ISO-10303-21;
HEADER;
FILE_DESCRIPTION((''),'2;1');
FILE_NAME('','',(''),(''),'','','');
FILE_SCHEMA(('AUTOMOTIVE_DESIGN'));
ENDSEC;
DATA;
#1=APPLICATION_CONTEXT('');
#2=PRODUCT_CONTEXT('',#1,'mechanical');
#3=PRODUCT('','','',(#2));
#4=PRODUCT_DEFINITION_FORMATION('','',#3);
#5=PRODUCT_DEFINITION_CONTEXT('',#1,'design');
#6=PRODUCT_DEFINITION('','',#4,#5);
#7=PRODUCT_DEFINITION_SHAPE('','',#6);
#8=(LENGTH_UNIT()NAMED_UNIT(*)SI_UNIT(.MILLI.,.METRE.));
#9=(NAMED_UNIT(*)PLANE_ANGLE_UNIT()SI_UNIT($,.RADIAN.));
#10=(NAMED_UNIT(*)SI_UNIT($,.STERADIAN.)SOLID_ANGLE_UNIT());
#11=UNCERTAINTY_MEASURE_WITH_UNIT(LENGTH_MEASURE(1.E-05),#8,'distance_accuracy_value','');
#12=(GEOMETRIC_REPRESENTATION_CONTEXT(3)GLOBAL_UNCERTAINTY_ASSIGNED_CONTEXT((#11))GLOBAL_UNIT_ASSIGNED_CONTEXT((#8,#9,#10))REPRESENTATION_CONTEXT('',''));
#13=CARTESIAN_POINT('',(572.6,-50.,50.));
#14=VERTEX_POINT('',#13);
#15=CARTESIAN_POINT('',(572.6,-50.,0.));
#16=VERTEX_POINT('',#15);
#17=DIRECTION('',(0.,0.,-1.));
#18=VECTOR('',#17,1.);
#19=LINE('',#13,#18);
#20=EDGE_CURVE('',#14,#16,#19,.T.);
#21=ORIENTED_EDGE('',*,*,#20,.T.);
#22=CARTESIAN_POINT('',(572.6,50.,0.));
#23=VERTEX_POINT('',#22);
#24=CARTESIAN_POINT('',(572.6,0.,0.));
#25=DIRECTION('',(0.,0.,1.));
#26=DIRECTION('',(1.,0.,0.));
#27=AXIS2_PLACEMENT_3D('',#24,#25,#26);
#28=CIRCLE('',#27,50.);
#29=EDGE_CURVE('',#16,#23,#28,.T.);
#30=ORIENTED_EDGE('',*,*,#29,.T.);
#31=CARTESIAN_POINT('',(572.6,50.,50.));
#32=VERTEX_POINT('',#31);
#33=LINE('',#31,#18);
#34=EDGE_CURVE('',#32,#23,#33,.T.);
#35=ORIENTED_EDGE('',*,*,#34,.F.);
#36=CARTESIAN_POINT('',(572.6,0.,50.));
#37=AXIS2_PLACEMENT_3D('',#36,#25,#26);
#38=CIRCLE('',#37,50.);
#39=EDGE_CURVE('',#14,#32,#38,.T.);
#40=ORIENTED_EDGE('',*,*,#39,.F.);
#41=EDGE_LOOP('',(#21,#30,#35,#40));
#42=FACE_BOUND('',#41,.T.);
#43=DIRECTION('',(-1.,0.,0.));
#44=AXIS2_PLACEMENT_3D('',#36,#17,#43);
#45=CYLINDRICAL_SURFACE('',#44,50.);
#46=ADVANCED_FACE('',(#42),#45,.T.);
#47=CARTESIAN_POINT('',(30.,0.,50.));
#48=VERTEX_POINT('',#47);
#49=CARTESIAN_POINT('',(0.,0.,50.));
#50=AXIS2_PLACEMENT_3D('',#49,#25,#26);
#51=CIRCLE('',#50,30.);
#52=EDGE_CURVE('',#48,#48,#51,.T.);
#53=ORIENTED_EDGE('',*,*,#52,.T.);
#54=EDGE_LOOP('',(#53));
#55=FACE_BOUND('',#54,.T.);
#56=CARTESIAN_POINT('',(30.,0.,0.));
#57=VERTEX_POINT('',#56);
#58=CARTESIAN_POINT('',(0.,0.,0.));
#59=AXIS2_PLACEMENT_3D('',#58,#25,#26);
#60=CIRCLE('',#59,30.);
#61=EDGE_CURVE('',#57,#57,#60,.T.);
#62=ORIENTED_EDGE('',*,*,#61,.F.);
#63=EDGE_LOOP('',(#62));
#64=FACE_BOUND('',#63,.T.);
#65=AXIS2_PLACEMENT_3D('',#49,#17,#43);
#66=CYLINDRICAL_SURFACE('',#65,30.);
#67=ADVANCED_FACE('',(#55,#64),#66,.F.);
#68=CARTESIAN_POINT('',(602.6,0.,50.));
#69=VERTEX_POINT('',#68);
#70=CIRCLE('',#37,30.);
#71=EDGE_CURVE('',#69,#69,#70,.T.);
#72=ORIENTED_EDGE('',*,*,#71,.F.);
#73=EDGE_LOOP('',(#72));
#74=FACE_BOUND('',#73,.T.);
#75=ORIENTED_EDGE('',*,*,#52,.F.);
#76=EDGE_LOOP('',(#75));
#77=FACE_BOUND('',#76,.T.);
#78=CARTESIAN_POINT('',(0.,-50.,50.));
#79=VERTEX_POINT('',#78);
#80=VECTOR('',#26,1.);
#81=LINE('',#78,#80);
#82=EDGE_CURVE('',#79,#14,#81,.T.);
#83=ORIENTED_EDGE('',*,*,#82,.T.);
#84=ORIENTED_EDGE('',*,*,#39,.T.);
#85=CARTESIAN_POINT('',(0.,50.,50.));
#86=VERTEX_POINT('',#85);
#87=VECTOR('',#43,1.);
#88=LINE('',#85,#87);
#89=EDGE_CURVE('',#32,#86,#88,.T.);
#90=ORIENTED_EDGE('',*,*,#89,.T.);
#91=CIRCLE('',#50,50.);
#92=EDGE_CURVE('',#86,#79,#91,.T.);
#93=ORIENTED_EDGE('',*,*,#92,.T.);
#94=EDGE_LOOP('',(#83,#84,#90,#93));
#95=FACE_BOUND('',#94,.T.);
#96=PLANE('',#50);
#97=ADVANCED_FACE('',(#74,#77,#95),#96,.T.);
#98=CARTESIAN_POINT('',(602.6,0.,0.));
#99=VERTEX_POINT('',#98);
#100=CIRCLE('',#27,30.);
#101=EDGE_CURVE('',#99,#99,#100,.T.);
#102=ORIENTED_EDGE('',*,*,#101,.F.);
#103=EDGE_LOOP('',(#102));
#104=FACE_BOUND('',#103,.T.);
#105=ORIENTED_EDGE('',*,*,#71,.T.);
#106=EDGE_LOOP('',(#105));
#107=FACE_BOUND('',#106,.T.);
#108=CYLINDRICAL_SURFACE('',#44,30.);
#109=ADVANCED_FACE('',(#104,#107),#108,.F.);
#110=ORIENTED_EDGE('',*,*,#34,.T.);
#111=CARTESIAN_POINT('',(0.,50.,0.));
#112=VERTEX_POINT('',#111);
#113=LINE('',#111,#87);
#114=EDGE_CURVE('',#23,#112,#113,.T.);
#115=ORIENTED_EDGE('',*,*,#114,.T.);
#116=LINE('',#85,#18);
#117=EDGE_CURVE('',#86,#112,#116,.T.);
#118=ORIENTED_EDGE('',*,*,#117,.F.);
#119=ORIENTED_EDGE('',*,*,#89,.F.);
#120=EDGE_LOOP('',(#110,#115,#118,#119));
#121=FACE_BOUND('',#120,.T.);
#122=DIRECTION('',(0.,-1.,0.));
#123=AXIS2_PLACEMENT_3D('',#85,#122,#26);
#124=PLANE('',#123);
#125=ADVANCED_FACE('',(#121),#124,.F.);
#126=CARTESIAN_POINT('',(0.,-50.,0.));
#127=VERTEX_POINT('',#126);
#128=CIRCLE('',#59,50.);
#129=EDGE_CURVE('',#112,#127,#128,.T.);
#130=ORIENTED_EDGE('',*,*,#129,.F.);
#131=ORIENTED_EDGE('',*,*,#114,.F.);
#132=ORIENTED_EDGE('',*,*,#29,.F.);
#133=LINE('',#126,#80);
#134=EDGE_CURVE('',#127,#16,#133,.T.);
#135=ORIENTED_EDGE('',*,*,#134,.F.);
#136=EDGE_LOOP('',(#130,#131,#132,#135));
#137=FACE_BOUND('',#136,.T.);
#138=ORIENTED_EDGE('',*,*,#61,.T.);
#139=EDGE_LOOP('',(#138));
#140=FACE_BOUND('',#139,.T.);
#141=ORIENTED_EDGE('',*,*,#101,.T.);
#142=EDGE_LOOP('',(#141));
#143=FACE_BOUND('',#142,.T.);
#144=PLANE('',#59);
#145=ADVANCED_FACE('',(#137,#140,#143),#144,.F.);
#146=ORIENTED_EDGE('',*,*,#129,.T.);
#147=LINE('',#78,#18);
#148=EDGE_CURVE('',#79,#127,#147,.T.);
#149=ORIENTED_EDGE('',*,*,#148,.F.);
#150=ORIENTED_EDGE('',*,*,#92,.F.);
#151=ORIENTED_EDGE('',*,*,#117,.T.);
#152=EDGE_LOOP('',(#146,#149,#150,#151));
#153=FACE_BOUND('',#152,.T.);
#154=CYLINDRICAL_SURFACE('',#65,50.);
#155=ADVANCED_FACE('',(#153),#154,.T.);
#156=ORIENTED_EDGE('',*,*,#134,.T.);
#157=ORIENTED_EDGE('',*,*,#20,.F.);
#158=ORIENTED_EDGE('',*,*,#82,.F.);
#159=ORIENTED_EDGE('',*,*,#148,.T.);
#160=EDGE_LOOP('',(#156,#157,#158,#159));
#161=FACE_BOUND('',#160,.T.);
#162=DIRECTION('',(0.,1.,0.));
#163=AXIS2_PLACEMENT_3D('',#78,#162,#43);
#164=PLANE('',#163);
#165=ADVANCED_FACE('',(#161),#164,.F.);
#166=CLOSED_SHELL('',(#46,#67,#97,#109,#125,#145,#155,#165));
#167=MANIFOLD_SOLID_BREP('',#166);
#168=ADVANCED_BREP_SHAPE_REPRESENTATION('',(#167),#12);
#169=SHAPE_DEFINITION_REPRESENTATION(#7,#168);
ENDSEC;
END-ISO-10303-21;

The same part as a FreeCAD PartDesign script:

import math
import FreeCAD as App
import Part
import Sketcher

V = App.Vector

doc = App.newDocument("Part")
params = doc.addObject("Spreadsheet::Sheet", "Params")
for row, (alias, value) in enumerate([
    ("sketch1_diameter", "60 mm"),
    ("sketch1_radius", "50 mm"),
    ("sketch1_width", "572.6 mm"),
    ("pad1_length", "50 mm"),
], start=1):
    params.set(f"A{row}", alias)
    params.set(f"B{row}", "=" + value)
    params.setAlias(f"B{row}", alias)

body = doc.addObject("PartDesign::Body", "Body")

sketch1 = doc.addObject("Sketcher::SketchObject", "Sketch")
body.addObject(sketch1)
sketch1.AttachmentSupport = (doc.XY_Plane, [""])
sketch1.MapMode = "FlatFace"
sketch1.addGeometry(Part.LineSegment(V(573, 50, 0), V(0, 50, 0)), False)
sketch1.addGeometry(Part.ArcOfCircle(Part.Circle(V(0, 0, 0), V(0, 0, 1), 50), math.radians(90), math.radians(270)), False)
sketch1.addGeometry(Part.LineSegment(V(0, -50, 0), V(573, -50, 0)), False)
sketch1.addGeometry(Part.ArcOfCircle(Part.Circle(V(573, 0, 0), V(0, 0, 1), 50), math.radians(-90), math.radians(90)), False)
sketch1.addGeometry(Part.Circle(V(573, 0, 0), V(0, 0, 1), 30), False)
sketch1.addGeometry(Part.Circle(V(0, 0, 0), V(0, 0, 1), 30), False)
sketch1.addConstraint(Sketcher.Constraint("Tangent", 0, 2, 1, 1))
sketch1.addConstraint(Sketcher.Constraint("Tangent", 1, 2, 2, 1))
sketch1.addConstraint(Sketcher.Constraint("Tangent", 2, 2, 3, 1))
sketch1.addConstraint(Sketcher.Constraint("Tangent", 3, 2, 0, 1))
sketch1.addConstraint(Sketcher.Constraint("Horizontal", 0))
sketch1.addConstraint(Sketcher.Constraint("Horizontal", 2))
sketch1.addConstraint(Sketcher.Constraint("Coincident", 1, 3, -1, 1))
sketch1.addConstraint(Sketcher.Constraint("Coincident", 5, 3, -1, 1))
sketch1.addConstraint(Sketcher.Constraint("Coincident", 4, 3, 3, 3))
sketch1.addConstraint(Sketcher.Constraint("Equal", 4, 5))
sketch1.addConstraint(Sketcher.Constraint("Diameter", 4, 60.0))
sketch1.addConstraint(Sketcher.Constraint("Radius", 1, 50.0))
sketch1.addConstraint(Sketcher.Constraint("DistanceX", 0, 2, 0, 1, 572.6))
sketch1.setExpression("Constraints[10]", "Params.sketch1_diameter")
sketch1.setExpression("Constraints[11]", "Params.sketch1_radius")
sketch1.setExpression("Constraints[12]", "Params.sketch1_width")
pad1 = doc.addObject("PartDesign::Pad", "Pad")
body.addObject(pad1)
pad1.Profile = sketch1
pad1.setExpression("Length", "Params.pad1_length")

doc.recompute()
